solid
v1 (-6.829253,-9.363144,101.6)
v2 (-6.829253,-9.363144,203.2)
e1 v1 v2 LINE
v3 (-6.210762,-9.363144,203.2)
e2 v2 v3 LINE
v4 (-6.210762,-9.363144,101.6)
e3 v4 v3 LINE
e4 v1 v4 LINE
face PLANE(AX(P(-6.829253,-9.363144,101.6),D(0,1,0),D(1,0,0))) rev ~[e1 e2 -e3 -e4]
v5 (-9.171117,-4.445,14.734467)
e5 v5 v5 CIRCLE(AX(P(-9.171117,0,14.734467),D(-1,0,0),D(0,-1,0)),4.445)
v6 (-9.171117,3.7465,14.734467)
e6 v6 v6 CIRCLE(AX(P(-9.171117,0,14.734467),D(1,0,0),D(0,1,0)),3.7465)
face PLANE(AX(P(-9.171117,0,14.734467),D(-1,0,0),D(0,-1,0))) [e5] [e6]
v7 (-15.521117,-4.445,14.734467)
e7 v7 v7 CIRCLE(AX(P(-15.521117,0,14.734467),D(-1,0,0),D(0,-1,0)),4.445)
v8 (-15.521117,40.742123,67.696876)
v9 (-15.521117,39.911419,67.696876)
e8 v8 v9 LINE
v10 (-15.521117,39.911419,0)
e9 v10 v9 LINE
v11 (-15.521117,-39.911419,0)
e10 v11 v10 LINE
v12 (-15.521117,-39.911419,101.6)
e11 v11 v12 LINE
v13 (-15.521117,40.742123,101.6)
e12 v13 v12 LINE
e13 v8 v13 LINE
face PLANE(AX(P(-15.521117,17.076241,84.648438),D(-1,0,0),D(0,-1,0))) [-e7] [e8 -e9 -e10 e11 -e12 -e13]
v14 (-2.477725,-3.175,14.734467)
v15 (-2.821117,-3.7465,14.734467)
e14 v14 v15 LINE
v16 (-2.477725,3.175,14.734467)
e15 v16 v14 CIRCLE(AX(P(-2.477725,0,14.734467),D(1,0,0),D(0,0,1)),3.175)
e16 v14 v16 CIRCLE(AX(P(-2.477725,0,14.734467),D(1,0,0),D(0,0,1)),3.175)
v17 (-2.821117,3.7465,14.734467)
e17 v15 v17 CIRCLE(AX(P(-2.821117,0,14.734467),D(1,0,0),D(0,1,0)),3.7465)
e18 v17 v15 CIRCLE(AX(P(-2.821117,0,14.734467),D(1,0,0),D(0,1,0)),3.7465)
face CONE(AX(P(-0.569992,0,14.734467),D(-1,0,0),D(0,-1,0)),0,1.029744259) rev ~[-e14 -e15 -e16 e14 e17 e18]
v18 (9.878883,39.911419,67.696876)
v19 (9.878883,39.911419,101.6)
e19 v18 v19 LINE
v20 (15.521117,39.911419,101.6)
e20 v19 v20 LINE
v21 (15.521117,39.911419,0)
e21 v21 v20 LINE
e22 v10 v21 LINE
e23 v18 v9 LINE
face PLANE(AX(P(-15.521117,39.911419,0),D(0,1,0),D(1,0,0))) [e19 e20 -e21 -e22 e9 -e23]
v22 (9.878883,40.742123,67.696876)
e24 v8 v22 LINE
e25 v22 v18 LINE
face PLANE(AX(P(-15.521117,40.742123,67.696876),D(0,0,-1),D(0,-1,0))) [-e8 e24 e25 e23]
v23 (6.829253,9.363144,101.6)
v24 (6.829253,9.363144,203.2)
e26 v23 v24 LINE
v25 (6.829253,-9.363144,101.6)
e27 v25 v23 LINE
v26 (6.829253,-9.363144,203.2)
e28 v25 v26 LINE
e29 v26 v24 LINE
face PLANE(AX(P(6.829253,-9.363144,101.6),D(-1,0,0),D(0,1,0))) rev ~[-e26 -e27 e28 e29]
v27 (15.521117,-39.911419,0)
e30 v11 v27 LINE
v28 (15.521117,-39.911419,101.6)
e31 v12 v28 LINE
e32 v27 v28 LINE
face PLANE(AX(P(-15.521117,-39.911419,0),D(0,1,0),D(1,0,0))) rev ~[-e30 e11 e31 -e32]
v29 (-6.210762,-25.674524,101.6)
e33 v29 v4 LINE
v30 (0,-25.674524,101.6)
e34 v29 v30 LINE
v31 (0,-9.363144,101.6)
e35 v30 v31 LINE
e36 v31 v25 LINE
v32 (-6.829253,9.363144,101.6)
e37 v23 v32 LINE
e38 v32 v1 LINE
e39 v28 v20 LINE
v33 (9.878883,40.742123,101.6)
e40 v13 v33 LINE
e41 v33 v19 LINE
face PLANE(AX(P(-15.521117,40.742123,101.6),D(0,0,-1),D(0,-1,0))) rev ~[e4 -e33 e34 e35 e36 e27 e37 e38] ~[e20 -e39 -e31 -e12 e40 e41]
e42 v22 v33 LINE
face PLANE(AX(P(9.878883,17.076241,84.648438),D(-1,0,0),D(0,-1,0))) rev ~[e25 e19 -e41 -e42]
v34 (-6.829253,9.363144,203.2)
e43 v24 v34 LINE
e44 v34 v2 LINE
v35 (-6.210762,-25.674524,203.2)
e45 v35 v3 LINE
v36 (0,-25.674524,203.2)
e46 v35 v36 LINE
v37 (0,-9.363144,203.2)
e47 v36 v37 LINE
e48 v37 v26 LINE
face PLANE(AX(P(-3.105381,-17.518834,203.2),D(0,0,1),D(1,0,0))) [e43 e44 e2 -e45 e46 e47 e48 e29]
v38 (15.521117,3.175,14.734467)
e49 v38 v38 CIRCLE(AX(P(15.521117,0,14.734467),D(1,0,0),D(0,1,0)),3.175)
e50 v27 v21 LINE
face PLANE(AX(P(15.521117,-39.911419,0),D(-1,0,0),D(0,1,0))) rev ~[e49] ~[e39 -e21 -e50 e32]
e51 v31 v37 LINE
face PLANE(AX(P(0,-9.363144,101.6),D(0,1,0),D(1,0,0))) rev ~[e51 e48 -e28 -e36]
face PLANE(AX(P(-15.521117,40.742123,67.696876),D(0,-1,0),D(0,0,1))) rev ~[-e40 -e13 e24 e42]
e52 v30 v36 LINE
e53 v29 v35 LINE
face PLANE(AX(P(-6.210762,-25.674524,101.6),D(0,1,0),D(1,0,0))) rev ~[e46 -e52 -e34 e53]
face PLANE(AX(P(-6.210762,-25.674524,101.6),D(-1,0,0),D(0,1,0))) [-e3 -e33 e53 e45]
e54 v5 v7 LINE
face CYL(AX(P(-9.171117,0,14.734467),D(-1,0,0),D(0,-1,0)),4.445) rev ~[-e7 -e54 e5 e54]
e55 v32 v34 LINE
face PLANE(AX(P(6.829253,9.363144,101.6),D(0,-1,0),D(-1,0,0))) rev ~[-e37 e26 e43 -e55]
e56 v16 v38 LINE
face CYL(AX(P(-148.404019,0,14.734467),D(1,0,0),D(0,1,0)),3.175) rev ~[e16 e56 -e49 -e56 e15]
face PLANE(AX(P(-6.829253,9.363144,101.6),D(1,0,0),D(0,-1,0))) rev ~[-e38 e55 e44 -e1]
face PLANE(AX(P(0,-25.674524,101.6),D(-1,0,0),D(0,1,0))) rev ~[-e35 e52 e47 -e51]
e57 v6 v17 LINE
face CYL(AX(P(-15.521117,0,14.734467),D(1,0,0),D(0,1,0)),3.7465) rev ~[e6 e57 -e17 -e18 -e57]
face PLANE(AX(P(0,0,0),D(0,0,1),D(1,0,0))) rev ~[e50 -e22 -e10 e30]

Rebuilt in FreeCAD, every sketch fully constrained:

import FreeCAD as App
import Part
import Sketcher

V = App.Vector
Q = App.Units.Quantity

doc = App.newDocument("Part")
body = doc.addObject("PartDesign::Body", "Body")

# Sketch on XY plane
sketch1 = doc.addObject("Sketcher::SketchObject", "Sketch")
body.addObject(sketch1)
sketch1.AttachmentSupport = (doc.XY_Plane, [""])
sketch1.MapMode = "FlatFace"
sketch1.addGeometry(Part.LineSegment(V(-16, 40, 0), V(-16, -40, 0)), False)
sketch1.addGeometry(Part.LineSegment(V(-16, -40, 0), V(16, -40, 0)), False)
sketch1.addGeometry(Part.LineSegment(V(16, -40, 0), V(16, 40, 0)), False)
sketch1.addGeometry(Part.LineSegment(V(16, 40, 0), V(-16, 40, 0)), False)
sketch1.addConstraint(Sketcher.Constraint("Coincident", 0, 2, 1, 1))
sketch1.addConstraint(Sketcher.Constraint("Coincident", 1, 2, 2, 1))
sketch1.addConstraint(Sketcher.Constraint("Coincident", 2, 2, 3, 1))
sketch1.addConstraint(Sketcher.Constraint("Coincident", 3, 2, 0, 1))
sketch1.addConstraint(Sketcher.Constraint("Vertical", 0))
sketch1.addConstraint(Sketcher.Constraint("Horizontal", 1))
sketch1.addConstraint(Sketcher.Constraint("Vertical", 2))
sketch1.addConstraint(Sketcher.Constraint("Horizontal", 3))
sketch1.addConstraint(Sketcher.Constraint("Symmetric", 0, 2, 2, 2, -1, 1))
sketch1.addConstraint(Sketcher.Constraint("DistanceY", 0, 2, 0, 1, Q("79.822838 mm")))
sketch1.addConstraint(Sketcher.Constraint("DistanceX", 1, 1, 1, 2, Q("31.042233 mm")))
pad1 = doc.addObject("PartDesign::Pad", "Pad")
body.addObject(pad1)
pad1.Profile = sketch1
pad1.Length = Q("4 in")

# Sketch on YZ plane
sketch2 = doc.addObject("Sketcher::SketchObject", "Sketch001")
body.addObject(sketch2)
sketch2.AttachmentSupport = (doc.YZ_Plane, [""])
sketch2.MapMode = "FlatFace"
sketch2.AttachmentOffset = App.Placement(V(0, 0, -15.521117), App.Rotation())
sketch2.addGeometry(Part.Circle(V(0, 14.7, 0), V(0, 0, 1), 3.2), False)
sketch2.addConstraint(Sketcher.Constraint("PointOnObject", 0, 3, -2))
sketch2.addConstraint(Sketcher.Constraint("Diameter", 0, Q("0.25 in")))
sketch2.addConstraint(Sketcher.Constraint("DistanceY", -1, 1, 0, 3, Q("14.734467 mm")))
doc.recompute()
hole = doc.addObject("PartDesign::Hole", "Hole")
body.addObject(hole)
hole.Profile = sketch2
hole.ThreadType = "None"
hole.Diameter = Q("0.25 in")
hole.DepthType = "ThroughAll"
hole.Reversed = True

# Sketch on YZ plane
sketch3 = doc.addObject("Sketcher::SketchObject", "Sketch002")
body.addObject(sketch3)
sketch3.AttachmentSupport = (doc.YZ_Plane, [""])
sketch3.MapMode = "FlatFace"
sketch3.AttachmentOffset = App.Placement(V(0, 0, -15.521117), App.Rotation())
sketch3.addGeometry(Part.Circle(V(0, 14.7, 0), V(0, 0, 1), 3.7), False)
sketch3.addConstraint(Sketcher.Constraint("PointOnObject", 0, 3, -2))
sketch3.addConstraint(Sketcher.Constraint("Diameter", 0, Q("0.295 in")))
sketch3.addConstraint(Sketcher.Constraint("DistanceY", -1, 1, 0, 3, Q("14.734467 mm")))
doc.recompute()
hole2 = doc.addObject("PartDesign::Hole", "Hole001")
body.addObject(hole2)
hole2.Profile = sketch3
hole2.ThreadType = "None"
hole2.Diameter = Q("0.295 in")
hole2.DepthType = "Dimension"
hole2.Depth = Q("0.5 in")
hole2.DrillPoint = "Angled"
hole2.DrillPointAngle = 118
hole2.HoleCutType = "Counterbore"
hole2.HoleCutDiameter = Q("0.35 in")
hole2.HoleCutDepth = Q("0.25 in")
hole2.Reversed = True

# Sketch on YZ plane
sketch4 = doc.addObject("Sketcher::SketchObject", "Sketch003")
body.addObject(sketch4)
sketch4.AttachmentSupport = (doc.YZ_Plane, [""])
sketch4.MapMode = "FlatFace"
sketch4.AttachmentOffset = App.Placement(V(0, 0, -15.521117), App.Rotation())
sketch4.addGeometry(Part.LineSegment(V(41, 102, 0), V(41, 68, 0)), False)
sketch4.addGeometry(Part.LineSegment(V(41, 68, 0), V(-7, 68, 0)), False)
sketch4.addGeometry(Part.LineSegment(V(-7, 68, 0), V(-7, 102, 0)), False)
sketch4.addGeometry(Part.LineSegment(V(-7, 102, 0), V(41, 102, 0)), False)
sketch4.addConstraint(Sketcher.Constraint("Coincident", 0, 2, 1, 1))
sketch4.addConstraint(Sketcher.Constraint("Coincident", 1, 2, 2, 1))
sketch4.addConstraint(Sketcher.Constraint("Coincident", 2, 2, 3, 1))
sketch4.addConstraint(Sketcher.Constraint("Coincident", 3, 2, 0, 1))
sketch4.addConstraint(Sketcher.Constraint("Vertical", 0))
sketch4.addConstraint(Sketcher.Constraint("Horizontal", 1))
sketch4.addConstraint(Sketcher.Constraint("Vertical", 2))
sketch4.addConstraint(Sketcher.Constraint("Horizontal", 3))
sketch4.addConstraint(Sketcher.Constraint("DistanceY", -1, 1, 2, 2, Q("4 in")))
sketch4.addConstraint(Sketcher.Constraint("DistanceX", 1, 2, 1, 1, Q("47.331765 mm")))
sketch4.addConstraint(Sketcher.Constraint("DistanceY", 0, 2, 0, 1, Q("33.903124 mm")))
sketch4.addConstraint(Sketcher.Constraint("DistanceX", 1, 2, -1, 1, Q("6.589642 mm")))
pad2 = doc.addObject("PartDesign::Pad", "Pad001")
body.addObject(pad2)
pad2.Profile = sketch4
pad2.Length = Q("1 in")

# Sketch on XY plane
sketch5 = doc.addObject("Sketcher::SketchObject", "Sketch004")
body.addObject(sketch5)
sketch5.AttachmentSupport = (doc.XY_Plane, [""])
sketch5.MapMode = "FlatFace"
sketch5.AttachmentOffset = App.Placement(V(0, 0, 4 * 25.4), App.Rotation())
sketch5.addGeometry(Part.LineSegment(V(-6.2, -9.4, 0), V(-6.2, -25.7, 0)), False)
sketch5.addGeometry(Part.LineSegment(V(-6.2, -25.7, 0), V(0, -25.7, 0)), False)
sketch5.addGeometry(Part.LineSegment(V(0, -25.7, 0), V(0, -9.4, 0)), False)
sketch5.addGeometry(Part.LineSegment(V(0, -9.4, 0), V(6.8, -9.4, 0)), False)
sketch5.addGeometry(Part.LineSegment(V(6.8, -9.4, 0), V(6.8, 9.4, 0)), False)
sketch5.addGeometry(Part.LineSegment(V(6.8, 9.4, 0), V(-6.8, 9.4, 0)), False)
sketch5.addGeometry(Part.LineSegment(V(-6.8, 9.4, 0), V(-6.8, -9.4, 0)), False)
sketch5.addGeometry(Part.LineSegment(V(-6.8, -9.4, 0), V(-6.2, -9.4, 0)), False)
sketch5.addConstraint(Sketcher.Constraint("Coincident", 0, 2, 1, 1))
sketch5.addConstraint(Sketcher.Constraint("Coincident", 1, 2, 2, 1))
sketch5.addConstraint(Sketcher.Constraint("Coincident", 2, 2, 3, 1))
sketch5.addConstraint(Sketcher.Constraint("Coincident", 3, 2, 4, 1))
sketch5.addConstraint(Sketcher.Constraint("Coincident", 4, 2, 5, 1))
sketch5.addConstraint(Sketcher.Constraint("Coincident", 5, 2, 6, 1))
sketch5.addConstraint(Sketcher.Constraint("Coincident", 6, 2, 7, 1))
sketch5.addConstraint(Sketcher.Constraint("Coincident", 7, 2, 0, 1))
sketch5.addConstraint(Sketcher.Constraint("Vertical", 0))
sketch5.addConstraint(Sketcher.Constraint("Horizontal", 1))
sketch5.addConstraint(Sketcher.Constraint("Vertical", 2))
sketch5.addConstraint(Sketcher.Constraint("Horizontal", 3))
sketch5.addConstraint(Sketcher.Constraint("Vertical", 4))
sketch5.addConstraint(Sketcher.Constraint("Horizontal", 5))
sketch5.addConstraint(Sketcher.Constraint("Vertical", 6))
sketch5.addConstraint(Sketcher.Constraint("Horizontal", 7))
sketch5.addConstraint(Sketcher.Constraint("Symmetric", 3, 2, 5, 2, -1, 1))
sketch5.addConstraint(Sketcher.Constraint("PointOnObject", 1, 2, -2))
sketch5.addConstraint(Sketcher.Constraint("Horizontal", 3, 2, 6, 2))
sketch5.addConstraint(Sketcher.Constraint("DistanceX", 7, 1, 7, 2, Q("0.618491 mm")))
sketch5.addConstraint(Sketcher.Constraint("DistanceY", 0, 2, 0, 1, Q("16.31138 mm")))
sketch5.addConstraint(Sketcher.Constraint("DistanceX", 1, 1, 1, 2, Q("6.210762 mm")))
sketch5.addConstraint(Sketcher.Constraint("DistanceY", 4, 1, 4, 2, Q("18.726287 mm")))
pad3 = doc.addObject("PartDesign::Pad", "Pad002")
body.addObject(pad3)
pad3.Profile = sketch5
pad3.Length = Q("4 in")

doc.recompute()
